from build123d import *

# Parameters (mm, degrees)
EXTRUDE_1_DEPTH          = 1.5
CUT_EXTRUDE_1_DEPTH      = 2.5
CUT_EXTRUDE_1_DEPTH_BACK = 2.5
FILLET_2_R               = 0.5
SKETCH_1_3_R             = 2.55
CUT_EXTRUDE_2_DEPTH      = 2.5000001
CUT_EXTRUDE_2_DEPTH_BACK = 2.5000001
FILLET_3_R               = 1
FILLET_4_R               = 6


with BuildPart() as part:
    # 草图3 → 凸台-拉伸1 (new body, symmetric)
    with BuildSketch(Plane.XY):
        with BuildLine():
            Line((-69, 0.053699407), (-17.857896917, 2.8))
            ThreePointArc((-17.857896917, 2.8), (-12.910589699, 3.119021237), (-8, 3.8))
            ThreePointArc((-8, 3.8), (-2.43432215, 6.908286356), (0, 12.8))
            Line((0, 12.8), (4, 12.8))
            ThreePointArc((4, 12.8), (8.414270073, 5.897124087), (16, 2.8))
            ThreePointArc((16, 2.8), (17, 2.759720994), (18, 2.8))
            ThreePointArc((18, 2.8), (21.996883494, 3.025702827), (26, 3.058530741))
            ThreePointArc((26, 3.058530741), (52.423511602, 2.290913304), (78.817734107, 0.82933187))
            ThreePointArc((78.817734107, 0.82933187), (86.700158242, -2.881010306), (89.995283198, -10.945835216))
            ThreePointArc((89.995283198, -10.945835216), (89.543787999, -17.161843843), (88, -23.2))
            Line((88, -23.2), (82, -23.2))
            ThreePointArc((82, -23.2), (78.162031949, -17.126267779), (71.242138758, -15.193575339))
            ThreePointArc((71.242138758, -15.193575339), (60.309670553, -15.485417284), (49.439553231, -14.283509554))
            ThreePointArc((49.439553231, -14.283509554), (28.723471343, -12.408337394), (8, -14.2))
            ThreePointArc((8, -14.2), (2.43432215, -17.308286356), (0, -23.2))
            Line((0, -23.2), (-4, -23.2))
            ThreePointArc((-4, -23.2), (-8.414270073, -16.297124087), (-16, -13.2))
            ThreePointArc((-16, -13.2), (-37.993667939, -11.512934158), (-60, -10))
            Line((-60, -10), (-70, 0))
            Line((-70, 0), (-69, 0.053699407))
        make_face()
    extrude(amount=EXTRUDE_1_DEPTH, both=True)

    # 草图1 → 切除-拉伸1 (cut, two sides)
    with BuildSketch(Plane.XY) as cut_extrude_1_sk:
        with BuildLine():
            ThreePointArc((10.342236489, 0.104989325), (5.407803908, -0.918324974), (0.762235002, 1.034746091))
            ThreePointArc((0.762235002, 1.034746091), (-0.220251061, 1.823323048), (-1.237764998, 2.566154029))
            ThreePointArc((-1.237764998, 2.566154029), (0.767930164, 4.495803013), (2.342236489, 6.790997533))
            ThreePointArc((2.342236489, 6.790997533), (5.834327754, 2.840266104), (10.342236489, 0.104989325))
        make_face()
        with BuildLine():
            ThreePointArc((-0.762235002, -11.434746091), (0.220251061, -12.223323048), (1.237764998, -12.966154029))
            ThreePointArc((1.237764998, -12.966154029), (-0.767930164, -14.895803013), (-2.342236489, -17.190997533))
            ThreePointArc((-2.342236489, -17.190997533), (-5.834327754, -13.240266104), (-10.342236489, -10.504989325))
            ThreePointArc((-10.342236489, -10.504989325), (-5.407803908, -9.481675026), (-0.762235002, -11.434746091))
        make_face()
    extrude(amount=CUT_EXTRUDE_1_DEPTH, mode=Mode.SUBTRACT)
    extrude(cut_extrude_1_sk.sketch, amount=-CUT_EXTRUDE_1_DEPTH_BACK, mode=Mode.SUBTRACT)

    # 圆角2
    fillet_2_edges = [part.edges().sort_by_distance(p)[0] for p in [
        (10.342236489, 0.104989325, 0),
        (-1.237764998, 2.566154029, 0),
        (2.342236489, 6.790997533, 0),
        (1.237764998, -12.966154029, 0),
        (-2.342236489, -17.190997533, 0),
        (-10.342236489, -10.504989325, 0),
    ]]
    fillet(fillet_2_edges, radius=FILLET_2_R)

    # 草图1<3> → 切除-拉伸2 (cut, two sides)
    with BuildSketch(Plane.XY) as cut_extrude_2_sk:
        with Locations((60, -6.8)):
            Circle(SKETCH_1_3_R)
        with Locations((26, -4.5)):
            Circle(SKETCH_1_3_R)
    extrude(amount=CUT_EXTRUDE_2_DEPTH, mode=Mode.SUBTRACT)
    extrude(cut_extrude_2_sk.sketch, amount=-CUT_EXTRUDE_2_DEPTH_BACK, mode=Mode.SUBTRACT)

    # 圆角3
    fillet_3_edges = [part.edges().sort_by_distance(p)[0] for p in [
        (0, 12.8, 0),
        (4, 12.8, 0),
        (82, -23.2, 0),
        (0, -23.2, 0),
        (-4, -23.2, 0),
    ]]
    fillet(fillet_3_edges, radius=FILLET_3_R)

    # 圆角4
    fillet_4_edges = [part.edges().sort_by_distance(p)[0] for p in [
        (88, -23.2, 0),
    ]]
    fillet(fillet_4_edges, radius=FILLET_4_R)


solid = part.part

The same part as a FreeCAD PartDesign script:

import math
import FreeCAD as App
import Part
import Sketcher
Q = App.Units.Quantity


def edges_at(feature, points):
    """Names of the edges that pass closest to the given points."""
    edges = feature.Shape.Edges
    near = lambda p: min(range(len(edges)), key=lambda i: edges[i].distToShape(Part.Vertex(*p))[0])
    return sorted({f"Edge{near(p) + 1}" for p in points})

doc = App.newDocument("Part")
body = doc.addObject("PartDesign::Body", "Body")

sketch1 = body.newObject("Sketcher::SketchObject", "Sketch")
sketch1.AttachmentSupport = (doc.getObject("XY_Plane"), [""])
sketch1.MapMode = "FlatFace"
sketch1.addGeometry([
    Part.LineSegment(App.Vector(-17.9, 2.8, 0), App.Vector(-69, 0.1, 0)),
    Part.LineSegment(App.Vector(-69, 0.1, 0), App.Vector(-70, 0, 0)),
    Part.LineSegment(App.Vector(-70, 0, 0), App.Vector(-60, -10, 0)),
    Part.ArcOfCircle(Part.Circle(App.Vector(-240.1, -2791.1, 0), App.Vector(0, 0, 1), 2786.9), math.radians(85.39), math.radians(86.29)),
    Part.ArcOfCircle(Part.Circle(App.Vector(-17.1, -26.7, 0), App.Vector(0, 0, 1), 13.6), math.radians(15), math.radians(85)),
    Part.LineSegment(App.Vector(-4, -23.2, 0), App.Vector(0, -23.2, 0)),
    Part.ArcOfCircle(Part.Circle(App.Vector(9.7, -23.8, 0), App.Vector(0, 0, 1), 9.7), math.radians(100), math.radians(177)),
    Part.ArcOfCircle(Part.Circle(App.Vector(28.5, -130.4, 0), App.Vector(0, 0, 1), 118), math.radians(80), math.radians(100)),
    Part.ArcOfCircle(Part.Circle(App.Vector(63.6, 64.4, 0), App.Vector(0, 0, 1), 80), math.radians(-100.23), math.radians(-84.55)),
    Part.ArcOfCircle(Part.Circle(App.Vector(72.2, -25.1, 0), App.Vector(0, 0, 1), 10), math.radians(11), math.radians(95)),
    Part.LineSegment(App.Vector(82, -23.2, 0), App.Vector(88, -23.2, 0)),
    Part.ArcOfCircle(Part.Circle(App.Vector(54.9, -11.5, 0), App.Vector(0, 0, 1), 35.1), math.radians(-19), math.radians(1)),
    Part.ArcOfCircle(Part.Circle(App.Vector(78, -11.1, 0), App.Vector(0, 0, 1), 12), math.radians(1), math.radians(86)),
    Part.ArcOfCircle(Part.Circle(App.Vector(10, -1002.9, 0), App.Vector(0, 0, 1), 1006.1), math.radians(86.08), math.radians(89.09)),
    Part.ArcOfCircle(Part.Circle(App.Vector(24.7, -80, 0), App.Vector(0, 0, 1), 83), math.radians(89.09), math.radians(94.61)),
    Part.ArcOfCircle(Part.Circle(App.Vector(17, 15.2, 0), App.Vector(0, 0, 1), 12.4), math.radians(-94.61), math.radians(-85.39)),
    Part.ArcOfCircle(Part.Circle(App.Vector(17.1, 16.3, 0), App.Vector(0, 0, 1), 13.6), math.radians(-165), math.radians(-95)),
    Part.LineSegment(App.Vector(4, 12.8, 0), App.Vector(0, 12.8, 0)),
    Part.ArcOfCircle(Part.Circle(App.Vector(-9.7, 13.4, 0), App.Vector(0, 0, 1), 9.7), math.radians(-80), math.radians(-3)),
    Part.ArcOfCircle(Part.Circle(App.Vector(-19.7, 70.3, 0), App.Vector(0, 0, 1), 67.6), math.radians(-88.41), math.radians(-80)),
], False)
sketch1.addConstraint([
    Sketcher.Constraint("Coincident", 0, 2, 1, 1),
    Sketcher.Constraint("Coincident", 1, 2, 2, 1),
    Sketcher.Constraint("Coincident", 2, 2, 3, 2),
    Sketcher.Constraint("Tangent", 3, 1, 4, 2),
    Sketcher.Constraint("Coincident", 4, 1, 5, 1),
    Sketcher.Constraint("Coincident", 5, 2, 6, 2),
    Sketcher.Constraint("Tangent", 6, 1, 7, 2),
    Sketcher.Constraint("Tangent", 7, 1, 8, 1),
    Sketcher.Constraint("Tangent", 8, 2, 9, 2),
    Sketcher.Constraint("Coincident", 9, 1, 10, 1),
    Sketcher.Constraint("Coincident", 10, 2, 11, 1),
    Sketcher.Constraint("Tangent", 11, 2, 12, 1),
    Sketcher.Constraint("Tangent", 12, 2, 13, 1),
    Sketcher.Constraint("Tangent", 13, 2, 14, 1),
    Sketcher.Constraint("Tangent", 14, 2, 15, 2),
    Sketcher.Constraint("Tangent", 15, 1, 16, 2),
    Sketcher.Constraint("Coincident", 16, 1, 17, 1),
    Sketcher.Constraint("Coincident", 17, 2, 18, 2),
    Sketcher.Constraint("Tangent", 18, 1, 19, 2),
    Sketcher.Constraint("Coincident", 19, 1, 0, 1),
    Sketcher.Constraint("Horizontal", 5),
    Sketcher.Constraint("Horizontal", 10),
    Sketcher.Constraint("Horizontal", 17),
    Sketcher.Constraint("Equal", 4, 16),
    Sketcher.Constraint("Equal", 6, 18),
    Sketcher.Constraint("PointOnObject", 1, 2, -1),
    Sketcher.Constraint("PointOnObject", 5, 2, -2),
    Sketcher.Constraint("PointOnObject", 17, 2, -2),
    Sketcher.Constraint("Parallel", 0, 1),
    Sketcher.Constraint("Horizontal", 5, 2, 9, 1),
    Sketcher.Constraint("Horizontal", 14, 2, 15, 1),
    Sketcher.Constraint("Horizontal", 15, 1, 19, 1),
    Sketcher.Constraint("Equal", 5, 17),
    Sketcher.Constraint("Radius", 8, Q("80 mm")),
    Sketcher.Constraint("Radius", 9, Q("10 mm")),
    Sketcher.Constraint("Radius", 12, Q("12 mm")),
    Sketcher.Constraint("DistanceX", 5, 1, 5, 2, Q("4 mm")),
    Sketcher.Constraint("DistanceX", 10, 1, 10, 2, Q("6 mm")),
    Sketcher.Constraint("Angle", 2, Q("-45 deg")),
    Sketcher.Constraint("DistanceX", -1, 1, 13, 3, Q("10 mm")),
    Sketcher.Constraint("DistanceX", -1, 1, 15, 3, Q("17 mm")),
    Sketcher.Constraint("DistanceX", 0, 2, -1, 1, Q("69 mm")),
    Sketcher.Constraint("DistanceX", 1, 2, -1, 1, Q("70 mm")),
    Sketcher.Constraint("DistanceX", 2, 2, -1, 1, Q("60 mm")),
    Sketcher.Constraint("DistanceX", -1, 1, 6, 1, Q("8 mm")),
    Sketcher.Constraint("DistanceX", -1, 1, 9, 1, Q("82 mm")),
    Sketcher.Constraint("DistanceX", -1, 1, 15, 1, Q("16 mm")),
    Sketcher.Constraint("DistanceX", 18, 1, -1, 1, Q("8 mm")),
    Sketcher.Constraint("DistanceY", 4, 1, 3, 1, Q("10 mm")),
    Sketcher.Constraint("DistanceY", 5, 2, 6, 1, Q("9 mm")),
    Sketcher.Constraint("DistanceY", 6, 1, 14, 2, Q("17 mm")),
    Sketcher.Constraint("DistanceY", 15, 1, 16, 1, Q("10 mm")),
    Sketcher.Constraint("DistanceY", 18, 1, 17, 2, Q("9 mm")),
    Sketcher.Constraint("DistanceY", 5, 2, -1, 1, Q("23.2 mm")),
    Sketcher.Constraint("Radius", 11, Q("35.098402 mm")),
    Sketcher.Constraint("Radius", 4, Q("13.55183 mm")),
    Sketcher.Constraint("Radius", 14, Q("83.046869 mm")),
    Sketcher.Constraint("Radius", 19, Q("67.555259 mm")),
    Sketcher.Constraint("Radius", 3, Q("2786.890366 mm")),
    Sketcher.Constraint("Radius", 6, Q("9.699754 mm")),
    Sketcher.Constraint("Radius", 7, Q("117.995892 mm")),
    Sketcher.Constraint("Radius", 13, Q("1006.060336 mm")),
    Sketcher.Constraint("DistanceX", 4, 3, 8, 3, Q("80.736 mm")),
    Sketcher.Constraint("DistanceX", -1, 1, 11, 3, Q("54.901598 mm")),
])
pad1 = body.newObject("PartDesign::Pad", "Pad")
pad1.Profile = sketch1
pad1.Length = 3
pad1.Midplane = True

sketch2 = body.newObject("Sketcher::SketchObject", "Sketch001")
sketch2.AttachmentSupport = (doc.getObject("XY_Plane"), [""])
sketch2.MapMode = "FlatFace"
sketch2.addGeometry([
    Part.ArcOfCircle(Part.Circle(App.Vector(6.2, 7.5, 0), App.Vector(0, 0, 1), 8.5), math.radians(-130), math.radians(-61)),
    Part.ArcOfCircle(Part.Circle(App.Vector(17.1, 16.3, 0), App.Vector(0, 0, 1), 17.6), math.radians(-147), math.radians(-113)),
    Part.ArcOfCircle(Part.Circle(App.Vector(-9.7, 13.4, 0), App.Vector(0, 0, 1), 13.7), math.radians(-52), math.radians(-29)),
    Part.ArcOfCircle(Part.Circle(App.Vector(-17, -20, 0), App.Vector(0, 0, 1), 27.5), math.radians(49.94), math.radians(55.18)),
    Part.ArcOfCircle(Part.Circle(App.Vector(17, 9.6, 0), App.Vector(0, 0, 1), 27.5), math.radians(-130.06), math.radians(-124.82)),
    Part.ArcOfCircle(Part.Circle(App.Vector(-6.2, -17.9, 0), App.Vector(0, 0, 1), 8.5), math.radians(50), math.radians(119)),
    Part.ArcOfCircle(Part.Circle(App.Vector(-17.1, -26.7, 0), App.Vector(0, 0, 1), 17.6), math.radians(33), math.radians(67)),
    Part.ArcOfCircle(Part.Circle(App.Vector(9.7, -23.8, 0), App.Vector(0, 0, 1), 13.7), math.radians(128), math.radians(151)),
], False)
sketch2.addConstraint([
    Sketcher.Constraint("Coincident", 0, 2, 1, 2),
    Sketcher.Constraint("Coincident", 1, 1, 2, 2),
    Sketcher.Constraint("Coincident", 2, 1, 3, 2),
    Sketcher.Constraint("Tangent", 3, 1, 0, 1),
    Sketcher.Constraint("Tangent", 4, 1, 5, 1),
    Sketcher.Constraint("Coincident", 5, 2, 6, 2),
    Sketcher.Constraint("Coincident", 6, 1, 7, 2),
    Sketcher.Constraint("Coincident", 7, 1, 4, 2),
    Sketcher.Constraint("Equal", 3, 4),
    Sketcher.Constraint("Equal", 0, 5),
    Sketcher.Constraint("Equal", 1, 6),
    Sketcher.Constraint("Equal", 2, 7),
    Sketcher.Constraint("DistanceX", 1, 1, 0, 2, Q("8 mm")),
    Sketcher.Constraint("DistanceX", 2, 1, 3, 1, Q("2 mm")),
    Sketcher.Constraint("DistanceX", 5, 2, 6, 1, Q("8 mm")),
    Sketcher.Constraint("DistanceX", 4, 1, 7, 1, Q("2 mm")),
    Sketcher.Constraint("Radius", 1, Q("17.55183 mm")),
    Sketcher.Constraint("DistanceX", 2, 1, 1, 1, Q("3.580001 mm")),
    Sketcher.Constraint("DistanceX", 5, 2, 4, 1, Q("9.580001 mm")),
    Sketcher.Constraint("Radius", 0, Q("8.492527 mm")),
    Sketcher.Constraint("Radius", 2, Q("13.699754 mm")),
    Sketcher.Constraint("Radius", 3, Q("27.546554 mm")),
    Sketcher.Constraint("DistanceY", 2, 1, 2, 3, Q("10.786298 mm")),
    Sketcher.Constraint("DistanceY", 4, 1, 2, 1, Q("14.0009 mm")),
    Sketcher.Constraint("DistanceY", 7, 3, 7, 1, Q("10.786298 mm")),
    Sketcher.Constraint("DistanceX", -1, 1, 1, 3, Q("17.08994 mm")),
    Sketcher.Constraint("DistanceY", -1, 1, 1, 3, Q("16.307928 mm")),
    Sketcher.Constraint("DistanceX", 2, 3, -1, 1, Q("9.684009 mm")),
    Sketcher.Constraint("DistanceX", -1, 1, 4, 3, Q("16.967179 mm")),
    Sketcher.Constraint("DistanceY", -1, 1, 4, 3, Q("9.64796 mm")),
])
pocket1 = body.newObject("PartDesign::Pocket", "Pocket")
pocket1.Profile = sketch2
pocket1.Type = "ThroughAll"
pocket1.Midplane = True
doc.recompute()

fillet = body.newObject("PartDesign::Fillet", "Fillet")
fillet.Base = (pocket1, edges_at(pocket1, [
    (10.342, 0.105, 0),
    (-1.238, 2.566, 0),
    (2.342, 6.791, 0),
    (1.238, -12.966, 0),
    (-2.342, -17.191, 0),
    (-10.342, -10.505, 0),
]))
fillet.Radius = 0.5

sketch3 = body.newObject("Sketcher::SketchObject", "Sketch002")
sketch3.AttachmentSupport = (doc.getObject("XY_Plane"), [""])
sketch3.MapMode = "FlatFace"
sketch3.addGeometry([
    Part.Circle(App.Vector(60, -6.8, 0), App.Vector(0, 0, 1), 2.5),
    Part.Circle(App.Vector(26, -4.5, 0), App.Vector(0, 0, 1), 2.5),
], False)
sketch3.addConstraint([
    Sketcher.Constraint("Equal", 0, 1),
    Sketcher.Constraint("Diameter", 0, Q("5.1 mm")),
    Sketcher.Constraint("DistanceX", -1, 1, 0, 3, Q("60 mm")),
    Sketcher.Constraint("DistanceX", -1, 1, 1, 3, Q("26 mm")),
    Sketcher.Constraint("DistanceY", 0, 3, -1, 1, Q("6.8 mm")),
    Sketcher.Constraint("DistanceY", 1, 3, -1, 1, Q("4.5 mm")),
])
pocket2 = body.newObject("PartDesign::Pocket", "Pocket001")
pocket2.Profile = sketch3
pocket2.Type = "ThroughAll"
pocket2.Midplane = True
doc.recompute()

fillet2 = body.newObject("PartDesign::Fillet", "Fillet001")
fillet2.Base = (pocket2, edges_at(pocket2, [
    (0, 12.8, 0),
    (4, 12.8, 0),
    (82, -23.2, 0),
    (0, -23.2, 0),
    (-4, -23.2, 0),
]))
fillet2.Radius = 1
doc.recompute()

fillet3 = body.newObject("PartDesign::Fillet", "Fillet002")
fillet3.Base = (fillet2, edges_at(fillet2, [(88, -23.2, 0)]))
fillet3.Radius = 6

doc.recompute()
